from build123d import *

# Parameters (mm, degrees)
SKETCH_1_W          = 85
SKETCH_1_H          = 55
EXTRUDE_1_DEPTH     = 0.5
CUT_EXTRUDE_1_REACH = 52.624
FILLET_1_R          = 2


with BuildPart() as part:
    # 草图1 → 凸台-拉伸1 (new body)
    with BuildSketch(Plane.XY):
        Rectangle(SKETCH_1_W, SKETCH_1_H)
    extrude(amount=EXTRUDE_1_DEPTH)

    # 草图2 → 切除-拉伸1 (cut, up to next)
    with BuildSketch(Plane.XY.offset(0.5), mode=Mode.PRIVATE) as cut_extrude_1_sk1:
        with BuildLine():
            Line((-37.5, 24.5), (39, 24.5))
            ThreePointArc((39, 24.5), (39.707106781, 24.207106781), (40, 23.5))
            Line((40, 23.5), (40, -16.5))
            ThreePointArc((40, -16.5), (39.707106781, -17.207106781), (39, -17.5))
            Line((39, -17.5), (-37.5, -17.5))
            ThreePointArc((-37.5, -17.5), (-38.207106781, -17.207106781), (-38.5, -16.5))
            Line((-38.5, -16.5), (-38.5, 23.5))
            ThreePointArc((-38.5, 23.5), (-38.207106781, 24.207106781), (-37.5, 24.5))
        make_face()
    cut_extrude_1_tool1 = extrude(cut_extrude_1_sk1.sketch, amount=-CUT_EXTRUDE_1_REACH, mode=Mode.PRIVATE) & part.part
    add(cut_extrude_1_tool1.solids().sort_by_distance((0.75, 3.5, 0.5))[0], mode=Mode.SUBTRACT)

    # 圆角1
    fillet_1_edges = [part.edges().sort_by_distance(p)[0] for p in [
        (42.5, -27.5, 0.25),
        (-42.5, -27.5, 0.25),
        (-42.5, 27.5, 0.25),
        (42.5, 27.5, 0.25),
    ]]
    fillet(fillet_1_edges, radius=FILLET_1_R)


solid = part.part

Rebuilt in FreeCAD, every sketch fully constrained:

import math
import FreeCAD as App
import Part
import Sketcher


def edges_at(feature, points):
    """Names of the edges that pass closest to the given points."""
    edges = feature.Shape.Edges
    near = lambda p: min(range(len(edges)), key=lambda i: edges[i].distToShape(Part.Vertex(*p))[0])
    return sorted({f"Edge{near(p) + 1}" for p in points})

doc = App.newDocument("Part")
body = doc.addObject("PartDesign::Body", "Body")

# Sketch on XY plane
sketch1 = body.newObject("Sketcher::SketchObject", "Sketch")
sketch1.AttachmentSupport = (doc.getObject("XY_Plane"), [""])
sketch1.MapMode = "FlatFace"
sketch1.addGeometry([
    Part.LineSegment(App.Vector(-42, 28, 0), App.Vector(-42, -28, 0)),
    Part.LineSegment(App.Vector(-42, -28, 0), App.Vector(42, -28, 0)),
    Part.LineSegment(App.Vector(42, -28, 0), App.Vector(42, 28, 0)),
    Part.LineSegment(App.Vector(42, 28, 0), App.Vector(-42, 28, 0)),
], False)
sketch1.addConstraint([
    Sketcher.Constraint("Coincident", 0, 2, 1, 1),
    Sketcher.Constraint("Coincident", 1, 2, 2, 1),
    Sketcher.Constraint("Coincident", 2, 2, 3, 1),
    Sketcher.Constraint("Coincident", 3, 2, 0, 1),
    Sketcher.Constraint("Vertical", 0),
    Sketcher.Constraint("Horizontal", 1),
    Sketcher.Constraint("Vertical", 2),
    Sketcher.Constraint("Horizontal", 3),
    Sketcher.Constraint("Symmetric", 0, 2, 2, 2, -1, 1),
    Sketcher.Constraint("DistanceX", 1, 1, 1, 2, 85.0),
    Sketcher.Constraint("DistanceY", 0, 2, 0, 1, 55.0),
])
pad1 = body.newObject("PartDesign::Pad", "Pad")
pad1.Profile = sketch1
pad1.Length = 0.5

# Sketch on XY plane
sketch2 = body.newObject("Sketcher::SketchObject", "Sketch001")
sketch2.AttachmentSupport = (doc.getObject("XY_Plane"), [""])
sketch2.MapMode = "FlatFace"
sketch2.AttachmentOffset = App.Placement(App.Vector(0, 0, 0.5), App.Rotation())
sketch2.addGeometry([
    Part.LineSegment(App.Vector(39, 24.5, 0), App.Vector(-37.5, 24.5, 0)),  # 0
    Part.ArcOfCircle(Part.Circle(App.Vector(-37.5, 23.5, 0), App.Vector(0, 0, 1), 1), math.radians(90), math.radians(180)),  # 1
    Part.LineSegment(App.Vector(-38.5, 23.5, 0), App.Vector(-38.5, -16.5, 0)),  # 2
    Part.ArcOfCircle(Part.Circle(App.Vector(-37.5, -16.5, 0), App.Vector(0, 0, 1), 1), math.radians(-180), math.radians(-90)),  # 3
    Part.LineSegment(App.Vector(-37.5, -17.5, 0), App.Vector(39, -17.5, 0)),  # 4
    Part.ArcOfCircle(Part.Circle(App.Vector(39, -16.5, 0), App.Vector(0, 0, 1), 1), math.radians(-90), math.radians(0)),  # 5
    Part.LineSegment(App.Vector(40, -16.5, 0), App.Vector(40, 23.5, 0)),  # 6
    Part.ArcOfCircle(Part.Circle(App.Vector(39, 23.5, 0), App.Vector(0, 0, 1), 1), math.radians(0), math.radians(90)),  # 7
], False)
sketch2.addConstraint([
    Sketcher.Constraint("Tangent", 0, 2, 1, 1),
    Sketcher.Constraint("Tangent", 1, 2, 2, 1),
    Sketcher.Constraint("Tangent", 2, 2, 3, 1),
    Sketcher.Constraint("Tangent", 3, 2, 4, 1),
    Sketcher.Constraint("Tangent", 4, 2, 5, 1),
    Sketcher.Constraint("Tangent", 5, 2, 6, 1),
    Sketcher.Constraint("Tangent", 6, 2, 7, 1),
    Sketcher.Constraint("Tangent", 7, 2, 0, 1),
    Sketcher.Constraint("Horizontal", 0),
    Sketcher.Constraint("Vertical", 2),
    Sketcher.Constraint("Horizontal", 4),
    Sketcher.Constraint("Vertical", 6),
    Sketcher.Constraint("Equal", 1, 3),
    Sketcher.Constraint("Equal", 3, 5),
    Sketcher.Constraint("Equal", 5, 7),
    Sketcher.Constraint("Radius", 1, 1.0),
    Sketcher.Constraint("DistanceY", 2, 2, 2, 1, 40.0),
    Sketcher.Constraint("DistanceX", 0, 2, 0, 1, 76.5),
    Sketcher.Constraint("DistanceX", -1, 1, 5, 3, 39.0),
    Sketcher.Constraint("DistanceY", -1, 1, 1, 3, 23.5),
])
pocket1 = body.newObject("PartDesign::Pocket", "Pocket")
pocket1.Profile = sketch2
pocket1.Type = "UpToFirst"
doc.recompute()

fillet = body.newObject("PartDesign::Fillet", "Fillet")
fillet.Base = (pocket1, edges_at(pocket1, [
    (42.5, -27.5, 0.25),
    (-42.5, -27.5, 0.25),
    (-42.5, 27.5, 0.25),
    (42.5, 27.5, 0.25),
]))
fillet.Radius = 2

doc.recompute()
